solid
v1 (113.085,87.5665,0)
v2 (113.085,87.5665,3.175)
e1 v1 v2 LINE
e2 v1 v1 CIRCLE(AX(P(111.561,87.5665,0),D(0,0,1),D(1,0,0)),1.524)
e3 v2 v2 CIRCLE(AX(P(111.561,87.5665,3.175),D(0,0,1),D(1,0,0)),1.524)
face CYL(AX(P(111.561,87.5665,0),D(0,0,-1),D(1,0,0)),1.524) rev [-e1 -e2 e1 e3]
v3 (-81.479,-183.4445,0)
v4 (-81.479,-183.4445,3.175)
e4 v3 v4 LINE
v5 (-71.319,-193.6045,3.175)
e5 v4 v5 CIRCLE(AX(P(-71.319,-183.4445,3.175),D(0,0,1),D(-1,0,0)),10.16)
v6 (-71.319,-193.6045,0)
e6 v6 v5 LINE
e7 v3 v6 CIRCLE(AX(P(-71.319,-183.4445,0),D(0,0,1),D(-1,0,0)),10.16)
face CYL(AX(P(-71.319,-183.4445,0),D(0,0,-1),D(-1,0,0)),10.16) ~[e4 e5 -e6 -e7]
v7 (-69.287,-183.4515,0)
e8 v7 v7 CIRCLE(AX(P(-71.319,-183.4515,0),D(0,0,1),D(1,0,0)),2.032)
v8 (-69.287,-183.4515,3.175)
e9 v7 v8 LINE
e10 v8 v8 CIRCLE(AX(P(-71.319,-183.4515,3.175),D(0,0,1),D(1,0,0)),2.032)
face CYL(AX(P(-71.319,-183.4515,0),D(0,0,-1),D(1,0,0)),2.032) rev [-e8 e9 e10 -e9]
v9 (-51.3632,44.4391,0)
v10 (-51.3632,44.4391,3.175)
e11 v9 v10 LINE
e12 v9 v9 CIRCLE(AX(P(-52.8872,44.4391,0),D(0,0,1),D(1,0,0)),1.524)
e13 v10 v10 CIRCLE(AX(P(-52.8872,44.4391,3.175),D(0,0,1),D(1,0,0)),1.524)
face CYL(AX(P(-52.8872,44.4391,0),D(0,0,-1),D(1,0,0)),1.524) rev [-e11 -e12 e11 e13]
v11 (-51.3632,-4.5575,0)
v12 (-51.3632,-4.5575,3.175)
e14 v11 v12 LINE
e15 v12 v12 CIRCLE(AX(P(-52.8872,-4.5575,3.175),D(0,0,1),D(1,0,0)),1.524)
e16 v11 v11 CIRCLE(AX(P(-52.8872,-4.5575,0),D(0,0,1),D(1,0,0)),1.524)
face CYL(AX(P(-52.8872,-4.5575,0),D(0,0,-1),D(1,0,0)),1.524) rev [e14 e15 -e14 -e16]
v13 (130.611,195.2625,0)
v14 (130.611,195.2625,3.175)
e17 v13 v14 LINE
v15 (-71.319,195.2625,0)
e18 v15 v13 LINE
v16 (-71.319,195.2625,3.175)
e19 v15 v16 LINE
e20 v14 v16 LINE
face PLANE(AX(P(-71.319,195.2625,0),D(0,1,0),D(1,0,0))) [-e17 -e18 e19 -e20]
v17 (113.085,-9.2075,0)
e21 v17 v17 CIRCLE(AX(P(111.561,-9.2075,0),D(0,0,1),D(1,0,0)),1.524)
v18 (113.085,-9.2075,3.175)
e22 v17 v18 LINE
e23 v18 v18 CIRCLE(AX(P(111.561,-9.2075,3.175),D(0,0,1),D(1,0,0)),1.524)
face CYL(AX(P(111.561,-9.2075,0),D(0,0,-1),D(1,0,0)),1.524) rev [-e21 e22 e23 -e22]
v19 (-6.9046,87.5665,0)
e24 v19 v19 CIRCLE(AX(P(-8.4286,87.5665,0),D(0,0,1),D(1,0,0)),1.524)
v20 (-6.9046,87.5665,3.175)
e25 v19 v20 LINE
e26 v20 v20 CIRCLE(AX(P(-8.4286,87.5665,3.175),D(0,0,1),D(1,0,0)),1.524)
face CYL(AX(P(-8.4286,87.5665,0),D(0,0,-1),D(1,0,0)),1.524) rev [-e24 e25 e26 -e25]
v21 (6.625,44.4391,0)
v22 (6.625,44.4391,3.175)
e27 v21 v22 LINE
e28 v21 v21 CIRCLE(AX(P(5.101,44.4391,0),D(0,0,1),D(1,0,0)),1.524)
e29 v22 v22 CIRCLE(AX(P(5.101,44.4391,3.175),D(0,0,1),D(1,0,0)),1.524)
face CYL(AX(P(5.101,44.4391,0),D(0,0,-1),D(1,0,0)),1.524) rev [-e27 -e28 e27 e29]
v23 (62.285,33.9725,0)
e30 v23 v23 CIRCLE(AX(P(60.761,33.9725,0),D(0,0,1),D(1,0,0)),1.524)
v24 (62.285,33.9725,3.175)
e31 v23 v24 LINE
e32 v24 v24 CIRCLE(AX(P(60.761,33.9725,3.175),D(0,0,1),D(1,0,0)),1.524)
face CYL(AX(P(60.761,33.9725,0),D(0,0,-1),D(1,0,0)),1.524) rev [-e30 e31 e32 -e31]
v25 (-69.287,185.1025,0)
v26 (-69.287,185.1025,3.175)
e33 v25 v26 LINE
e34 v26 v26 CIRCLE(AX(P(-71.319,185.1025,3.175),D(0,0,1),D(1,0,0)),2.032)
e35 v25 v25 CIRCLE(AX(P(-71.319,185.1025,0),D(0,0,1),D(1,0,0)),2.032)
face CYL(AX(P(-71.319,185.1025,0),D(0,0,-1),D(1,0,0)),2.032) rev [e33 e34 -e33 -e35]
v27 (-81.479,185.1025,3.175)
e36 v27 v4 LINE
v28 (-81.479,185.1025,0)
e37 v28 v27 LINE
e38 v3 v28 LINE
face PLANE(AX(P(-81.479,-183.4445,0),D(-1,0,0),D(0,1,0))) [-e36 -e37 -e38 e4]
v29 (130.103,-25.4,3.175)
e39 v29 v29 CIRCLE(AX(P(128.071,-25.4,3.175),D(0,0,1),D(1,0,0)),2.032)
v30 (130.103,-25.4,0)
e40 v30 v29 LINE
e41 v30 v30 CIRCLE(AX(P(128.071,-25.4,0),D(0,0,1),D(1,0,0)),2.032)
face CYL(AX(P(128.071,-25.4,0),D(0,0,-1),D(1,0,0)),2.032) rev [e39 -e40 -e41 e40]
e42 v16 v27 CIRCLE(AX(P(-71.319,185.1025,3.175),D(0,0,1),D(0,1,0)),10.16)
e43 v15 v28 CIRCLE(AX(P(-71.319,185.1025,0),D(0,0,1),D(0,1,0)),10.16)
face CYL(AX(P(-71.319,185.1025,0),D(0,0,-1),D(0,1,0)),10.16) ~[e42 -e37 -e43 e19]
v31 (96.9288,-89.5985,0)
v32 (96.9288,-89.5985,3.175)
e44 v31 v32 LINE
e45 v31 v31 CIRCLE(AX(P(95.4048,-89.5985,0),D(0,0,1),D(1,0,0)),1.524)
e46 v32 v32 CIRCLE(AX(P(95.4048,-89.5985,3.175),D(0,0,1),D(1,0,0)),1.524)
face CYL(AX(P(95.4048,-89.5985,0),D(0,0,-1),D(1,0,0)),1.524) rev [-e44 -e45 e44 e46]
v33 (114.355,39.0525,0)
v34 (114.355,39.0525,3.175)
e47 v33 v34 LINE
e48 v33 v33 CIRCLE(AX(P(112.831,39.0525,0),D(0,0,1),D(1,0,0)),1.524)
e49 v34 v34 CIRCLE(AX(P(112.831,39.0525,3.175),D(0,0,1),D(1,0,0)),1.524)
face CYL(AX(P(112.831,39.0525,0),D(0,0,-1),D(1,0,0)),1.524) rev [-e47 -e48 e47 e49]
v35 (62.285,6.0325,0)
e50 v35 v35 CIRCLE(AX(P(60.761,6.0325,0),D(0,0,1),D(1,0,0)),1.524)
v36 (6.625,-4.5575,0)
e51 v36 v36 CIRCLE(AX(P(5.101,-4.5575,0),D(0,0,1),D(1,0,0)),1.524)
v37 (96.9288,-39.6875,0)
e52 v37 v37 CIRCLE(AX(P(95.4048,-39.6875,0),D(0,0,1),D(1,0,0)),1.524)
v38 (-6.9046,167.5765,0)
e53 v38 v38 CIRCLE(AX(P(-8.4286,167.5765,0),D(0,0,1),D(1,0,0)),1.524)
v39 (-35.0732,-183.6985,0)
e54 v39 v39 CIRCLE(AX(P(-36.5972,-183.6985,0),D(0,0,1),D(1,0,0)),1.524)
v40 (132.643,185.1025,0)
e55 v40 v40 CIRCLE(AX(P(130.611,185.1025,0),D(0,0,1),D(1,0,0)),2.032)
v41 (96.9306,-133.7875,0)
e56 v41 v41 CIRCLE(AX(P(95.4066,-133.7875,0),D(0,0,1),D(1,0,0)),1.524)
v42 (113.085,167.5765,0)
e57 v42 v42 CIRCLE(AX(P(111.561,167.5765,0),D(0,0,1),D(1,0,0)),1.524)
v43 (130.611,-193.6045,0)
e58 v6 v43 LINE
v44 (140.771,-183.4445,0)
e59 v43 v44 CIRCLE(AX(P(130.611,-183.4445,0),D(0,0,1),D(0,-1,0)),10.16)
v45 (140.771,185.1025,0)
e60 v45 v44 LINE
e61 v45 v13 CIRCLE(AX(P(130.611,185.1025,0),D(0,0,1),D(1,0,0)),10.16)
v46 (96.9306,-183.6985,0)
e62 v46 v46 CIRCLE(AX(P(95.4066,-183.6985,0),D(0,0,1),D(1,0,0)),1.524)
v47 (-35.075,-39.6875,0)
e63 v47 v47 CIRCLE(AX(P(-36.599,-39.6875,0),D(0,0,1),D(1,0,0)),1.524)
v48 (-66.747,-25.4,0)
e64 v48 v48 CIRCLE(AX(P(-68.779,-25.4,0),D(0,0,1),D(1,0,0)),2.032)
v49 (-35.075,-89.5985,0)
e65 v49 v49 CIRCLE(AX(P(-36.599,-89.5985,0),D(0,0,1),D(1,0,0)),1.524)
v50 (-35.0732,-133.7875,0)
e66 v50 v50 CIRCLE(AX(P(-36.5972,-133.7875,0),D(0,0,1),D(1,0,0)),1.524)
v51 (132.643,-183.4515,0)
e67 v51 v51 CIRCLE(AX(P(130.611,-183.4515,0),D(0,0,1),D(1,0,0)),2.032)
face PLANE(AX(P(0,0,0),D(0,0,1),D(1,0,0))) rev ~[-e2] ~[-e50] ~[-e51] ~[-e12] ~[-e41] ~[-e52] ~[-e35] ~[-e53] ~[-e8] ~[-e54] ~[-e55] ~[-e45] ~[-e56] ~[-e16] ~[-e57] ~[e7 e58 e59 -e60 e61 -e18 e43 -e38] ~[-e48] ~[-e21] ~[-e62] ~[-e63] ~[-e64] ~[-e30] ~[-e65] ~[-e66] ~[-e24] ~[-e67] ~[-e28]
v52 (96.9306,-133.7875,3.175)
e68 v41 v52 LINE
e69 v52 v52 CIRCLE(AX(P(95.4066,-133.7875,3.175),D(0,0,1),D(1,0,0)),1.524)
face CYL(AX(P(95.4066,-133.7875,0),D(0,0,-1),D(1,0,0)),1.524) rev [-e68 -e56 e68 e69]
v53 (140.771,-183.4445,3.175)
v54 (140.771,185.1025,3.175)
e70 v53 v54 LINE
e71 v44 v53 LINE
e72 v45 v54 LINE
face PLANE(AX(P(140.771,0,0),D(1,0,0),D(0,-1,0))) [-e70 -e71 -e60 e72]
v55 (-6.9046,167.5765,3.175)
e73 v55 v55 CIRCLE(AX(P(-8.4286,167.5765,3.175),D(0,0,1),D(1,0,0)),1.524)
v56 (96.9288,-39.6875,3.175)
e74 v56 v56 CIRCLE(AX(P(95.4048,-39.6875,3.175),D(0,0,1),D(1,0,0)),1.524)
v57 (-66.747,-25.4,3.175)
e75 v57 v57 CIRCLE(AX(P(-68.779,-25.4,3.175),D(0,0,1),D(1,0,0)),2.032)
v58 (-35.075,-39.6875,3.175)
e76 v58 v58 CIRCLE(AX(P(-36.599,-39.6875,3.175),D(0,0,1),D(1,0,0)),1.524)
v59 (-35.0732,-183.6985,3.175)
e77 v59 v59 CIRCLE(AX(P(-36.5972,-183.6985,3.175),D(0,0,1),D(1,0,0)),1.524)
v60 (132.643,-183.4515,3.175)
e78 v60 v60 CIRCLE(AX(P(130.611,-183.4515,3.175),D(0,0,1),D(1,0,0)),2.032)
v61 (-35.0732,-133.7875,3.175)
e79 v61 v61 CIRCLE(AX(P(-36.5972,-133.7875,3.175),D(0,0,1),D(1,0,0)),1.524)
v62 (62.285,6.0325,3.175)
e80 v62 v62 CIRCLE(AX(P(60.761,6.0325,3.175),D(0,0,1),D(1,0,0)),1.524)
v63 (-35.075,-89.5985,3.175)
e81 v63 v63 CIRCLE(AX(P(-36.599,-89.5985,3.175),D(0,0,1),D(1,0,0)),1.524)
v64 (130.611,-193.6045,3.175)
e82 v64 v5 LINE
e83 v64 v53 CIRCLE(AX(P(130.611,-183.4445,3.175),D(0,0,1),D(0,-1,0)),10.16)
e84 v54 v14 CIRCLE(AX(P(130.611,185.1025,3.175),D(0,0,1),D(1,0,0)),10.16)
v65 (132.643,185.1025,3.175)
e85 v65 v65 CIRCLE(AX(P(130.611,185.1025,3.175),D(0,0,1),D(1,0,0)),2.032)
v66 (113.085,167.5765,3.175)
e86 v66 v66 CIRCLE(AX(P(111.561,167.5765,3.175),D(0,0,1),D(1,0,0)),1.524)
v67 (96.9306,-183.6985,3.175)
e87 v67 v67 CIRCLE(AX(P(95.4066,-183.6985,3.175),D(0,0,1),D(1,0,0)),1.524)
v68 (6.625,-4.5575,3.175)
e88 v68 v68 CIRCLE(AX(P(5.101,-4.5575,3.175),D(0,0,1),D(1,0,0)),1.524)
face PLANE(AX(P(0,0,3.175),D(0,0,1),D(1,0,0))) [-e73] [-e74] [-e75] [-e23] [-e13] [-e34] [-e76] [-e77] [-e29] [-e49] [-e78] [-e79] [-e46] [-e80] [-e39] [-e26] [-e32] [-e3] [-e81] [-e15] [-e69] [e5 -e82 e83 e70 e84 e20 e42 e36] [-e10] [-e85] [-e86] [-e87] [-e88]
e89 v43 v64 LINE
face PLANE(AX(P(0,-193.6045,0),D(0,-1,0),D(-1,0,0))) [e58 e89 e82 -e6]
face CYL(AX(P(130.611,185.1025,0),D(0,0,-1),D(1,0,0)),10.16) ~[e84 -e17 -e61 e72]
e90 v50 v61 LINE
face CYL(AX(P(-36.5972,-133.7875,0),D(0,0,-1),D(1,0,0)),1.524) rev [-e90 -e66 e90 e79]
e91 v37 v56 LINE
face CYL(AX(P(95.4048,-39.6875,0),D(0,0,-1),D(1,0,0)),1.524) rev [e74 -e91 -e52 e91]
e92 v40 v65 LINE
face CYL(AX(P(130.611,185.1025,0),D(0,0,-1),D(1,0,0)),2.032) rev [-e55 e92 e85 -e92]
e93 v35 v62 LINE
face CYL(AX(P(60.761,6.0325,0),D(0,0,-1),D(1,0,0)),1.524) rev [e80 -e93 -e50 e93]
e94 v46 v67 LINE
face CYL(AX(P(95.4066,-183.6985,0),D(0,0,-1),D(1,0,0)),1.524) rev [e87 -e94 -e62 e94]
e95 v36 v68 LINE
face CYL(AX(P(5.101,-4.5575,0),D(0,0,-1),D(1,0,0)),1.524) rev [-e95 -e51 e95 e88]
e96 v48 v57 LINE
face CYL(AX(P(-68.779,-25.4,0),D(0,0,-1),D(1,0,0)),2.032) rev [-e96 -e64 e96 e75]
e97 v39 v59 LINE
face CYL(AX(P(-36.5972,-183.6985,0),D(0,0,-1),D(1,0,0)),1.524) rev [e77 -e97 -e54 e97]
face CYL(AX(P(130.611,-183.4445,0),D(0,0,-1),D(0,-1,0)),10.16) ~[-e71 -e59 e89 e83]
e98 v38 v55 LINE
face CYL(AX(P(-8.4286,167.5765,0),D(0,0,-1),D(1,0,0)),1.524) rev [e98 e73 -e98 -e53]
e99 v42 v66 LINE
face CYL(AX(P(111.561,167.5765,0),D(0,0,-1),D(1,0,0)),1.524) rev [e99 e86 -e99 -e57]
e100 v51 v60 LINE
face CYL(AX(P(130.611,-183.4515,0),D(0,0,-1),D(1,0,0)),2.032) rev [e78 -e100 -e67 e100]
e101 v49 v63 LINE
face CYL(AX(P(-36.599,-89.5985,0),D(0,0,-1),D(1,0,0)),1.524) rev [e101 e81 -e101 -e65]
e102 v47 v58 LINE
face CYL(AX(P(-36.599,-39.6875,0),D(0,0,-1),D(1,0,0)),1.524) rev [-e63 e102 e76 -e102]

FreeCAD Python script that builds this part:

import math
import FreeCAD as App
import Part
import Sketcher

V = App.Vector
Q = App.Units.Quantity

doc = App.newDocument("Part")
body = doc.addObject("PartDesign::Body", "Body")

# Sketch on XY plane
sketch1 = body.newObject("Sketcher::SketchObject", "Sketch")
sketch1.AttachmentSupport = (doc.getObject("XY_Plane"), [""])
sketch1.MapMode = "FlatFace"
sketch1.addGeometry([
    Part.LineSegment(V(-71.319, -193.6045, 0), V(130.611, -193.6045, 0)),  # 0
    Part.ArcOfCircle(Part.Circle(V(130.611, -183.4445, 0), V(0, 0, 1), 10.16), math.radians(-90), math.radians(0)),  # 1
    Part.LineSegment(V(140.771, -183.4445, 0), V(140.771, 185.1025, 0)),  # 2
    Part.ArcOfCircle(Part.Circle(V(130.611, 185.1025, 0), V(0, 0, 1), 10.16), math.radians(0), math.radians(90)),  # 3
    Part.LineSegment(V(130.611, 195.2625, 0), V(-71.319, 195.2625, 0)),  # 4
    Part.ArcOfCircle(Part.Circle(V(-71.319, 185.1025, 0), V(0, 0, 1), 10.16), math.radians(90), math.radians(180)),  # 5
    Part.LineSegment(V(-81.479, 185.1025, 0), V(-81.479, -183.4445, 0)),  # 6
    Part.ArcOfCircle(Part.Circle(V(-71.319, -183.4445, 0), V(0, 0, 1), 10.16), math.radians(180), math.radians(270)),  # 7
    Part.Circle(V(-71.319, -183.4515, 0), V(0, 0, 1), 2.032),  # 8
    Part.Circle(V(-36.5972, -183.6985, 0), V(0, 0, 1), 1.524),  # 9
    Part.Circle(V(-36.5972, -133.7875, 0), V(0, 0, 1), 1.524),  # 10
    Part.Circle(V(-36.599, -89.5985, 0), V(0, 0, 1), 1.524),  # 11
    Part.Circle(V(-68.779, -25.4, 0), V(0, 0, 1), 2.032),  # 12
    Part.Circle(V(-36.599, -39.6875, 0), V(0, 0, 1), 1.524),  # 13
    Part.Circle(V(-52.8872, -4.5575, 0), V(0, 0, 1), 1.524),  # 14
    Part.Circle(V(-8.4286, 167.5765, 0), V(0, 0, 1), 1.524),  # 15
    Part.Circle(V(-52.8872, 44.4391, 0), V(0, 0, 1), 1.524),  # 16
    Part.Circle(V(-8.4286, 87.5665, 0), V(0, 0, 1), 1.524),  # 17
    Part.Circle(V(-71.319, 185.1025, 0), V(0, 0, 1), 2.032),  # 18
    Part.Circle(V(128.071, -25.4, 0), V(0, 0, 1), 2.032),  # 19
    Part.Circle(V(5.101, -4.5575, 0), V(0, 0, 1), 1.524),  # 20
    Part.Circle(V(95.4066, -183.6985, 0), V(0, 0, 1), 1.524),  # 21
    Part.Circle(V(130.611, -183.4515, 0), V(0, 0, 1), 2.032),  # 22
    Part.Circle(V(95.4066, -133.7875, 0), V(0, 0, 1), 1.524),  # 23
    Part.Circle(V(95.4048, -89.5985, 0), V(0, 0, 1), 1.524),  # 24
    Part.Circle(V(95.4048, -39.6875, 0), V(0, 0, 1), 1.524),  # 25
    Part.Circle(V(111.561, -9.2075, 0), V(0, 0, 1), 1.524),  # 26
    Part.Circle(V(130.611, 185.1025, 0), V(0, 0, 1), 2.032),  # 27
    Part.Circle(V(111.561, 167.5765, 0), V(0, 0, 1), 1.524),  # 28
    Part.Circle(V(5.101, 44.4391, 0), V(0, 0, 1), 1.524),  # 29
    Part.Circle(V(60.761, 6.0325, 0), V(0, 0, 1), 1.524),  # 30
    Part.Circle(V(60.761, 33.9725, 0), V(0, 0, 1), 1.524),  # 31
    Part.Circle(V(112.831, 39.0525, 0), V(0, 0, 1), 1.524),  # 32
    Part.Circle(V(111.561, 87.5665, 0), V(0, 0, 1), 1.524),  # 33
], False)
sketch1.addConstraint([
    Sketcher.Constraint("Tangent", 0, 2, 1, 1),
    Sketcher.Constraint("Tangent", 1, 2, 2, 1),
    Sketcher.Constraint("Tangent", 2, 2, 3, 1),
    Sketcher.Constraint("Tangent", 3, 2, 4, 1),
    Sketcher.Constraint("Tangent", 4, 2, 5, 1),
    Sketcher.Constraint("Tangent", 5, 2, 6, 1),
    Sketcher.Constraint("Tangent", 6, 2, 7, 1),
    Sketcher.Constraint("Tangent", 7, 2, 0, 1),
    Sketcher.Constraint("Horizontal", 0),
    Sketcher.Constraint("Vertical", 2),
    Sketcher.Constraint("Horizontal", 4),
    Sketcher.Constraint("Vertical", 6),
    Sketcher.Constraint("Coincident", 18, 3, 5, 3),
    Sketcher.Constraint("Coincident", 27, 3, 3, 3),
    Sketcher.Constraint("Equal", 1, 3),
    Sketcher.Constraint("Equal", 3, 5),
    Sketcher.Constraint("Equal", 5, 7),
    Sketcher.Constraint("Equal", 9, 10),
    Sketcher.Constraint("Equal", 10, 11),
    Sketcher.Constraint("Equal", 8, 12),
    Sketcher.Constraint("Equal", 11, 13),
    Sketcher.Constraint("Equal", 13, 14),
    Sketcher.Constraint("Equal", 14, 15),
    Sketcher.Constraint("Equal", 15, 16),
    Sketcher.Constraint("Equal", 16, 17),
    Sketcher.Constraint("Equal", 12, 18),
    Sketcher.Constraint("Equal", 18, 19),
    Sketcher.Constraint("Equal", 17, 20),
    Sketcher.Constraint("Equal", 20, 21),
    Sketcher.Constraint("Equal", 19, 22),
    Sketcher.Constraint("Equal", 21, 23),
    Sketcher.Constraint("Equal", 23, 24),
    Sketcher.Constraint("Equal", 24, 25),
    Sketcher.Constraint("Equal", 25, 26),
    Sketcher.Constraint("Equal", 22, 27),
    Sketcher.Constraint("Equal", 26, 28),
    Sketcher.Constraint("Equal", 28, 29),
    Sketcher.Constraint("Equal", 29, 30),
    Sketcher.Constraint("Equal", 30, 31),
    Sketcher.Constraint("Equal", 31, 32),
    Sketcher.Constraint("Equal", 32, 33),
    Sketcher.Constraint("Horizontal", 12, 3, 19, 3),
    Sketcher.Constraint("Horizontal", 14, 3, 20, 3),
    Sketcher.Constraint("Horizontal", 9, 3, 21, 3),
    Sketcher.Constraint("Horizontal", 8, 3, 22, 3),
    Sketcher.Constraint("Horizontal", 10, 3, 23, 3),
    Sketcher.Constraint("Horizontal", 11, 3, 24, 3),
    Sketcher.Constraint("Horizontal", 13, 3, 25, 3),
    Sketcher.Constraint("Horizontal", 15, 3, 28, 3),
    Sketcher.Constraint("Horizontal", 16, 3, 29, 3),
    Sketcher.Constraint("Horizontal", 17, 3, 33, 3),
    Sketcher.Constraint("Vertical", 7, 3, 8, 3),
    Sketcher.Constraint("Vertical", 9, 3, 10, 3),
    Sketcher.Constraint("Vertical", 11, 3, 13, 3),
    Sketcher.Constraint("Vertical", 14, 3, 16, 3),
    Sketcher.Constraint("Vertical", 15, 3, 17, 3),
    Sketcher.Constraint("Vertical", 3, 3, 22, 3),
    Sketcher.Constraint("Vertical", 21, 3, 23, 3),
    Sketcher.Constraint("Vertical", 24, 3, 25, 3),
    Sketcher.Constraint("Vertical", 26, 3, 28, 3),
    Sketcher.Constraint("Vertical", 20, 3, 29, 3),
    Sketcher.Constraint("Vertical", 30, 3, 31, 3),
    Sketcher.Constraint("Vertical", 28, 3, 33, 3),
    Sketcher.Constraint("Radius", 1, Q("0.4 in")),
    Sketcher.Constraint("Diameter", 8, Q("0.16 in")),
    Sketcher.Constraint("Diameter", 9, Q("0.12 in")),
    Sketcher.Constraint("DistanceX", 30, 3, 26, 3, Q("2 in")),
    Sketcher.Constraint("DistanceX", 0, 1, 0, 2, Q("7.95 in")),
    Sketcher.Constraint("DistanceX", 7, 3, 12, 3, Q("0.1 in")),
    Sketcher.Constraint("DistanceX", 19, 3, 1, 3, Q("0.1 in")),
    Sketcher.Constraint("DistanceY", 26, 3, 30, 3, Q("0.6 in")),
    Sketcher.Constraint("DistanceY", 30, 3, 31, 3, Q("1.1 in")),
    Sketcher.Constraint("DistanceY", 31, 3, 32, 3, Q("0.2 in")),
    Sketcher.Constraint("DistanceX", 32, 3, 19, 3, Q("0.6 in")),
    Sketcher.Constraint("DistanceY", 8, 3, 5, 3, Q("14.51 in")),
    Sketcher.Constraint("DistanceY", 17, 3, 15, 3, Q("3.15 in")),
    Sketcher.Constraint("DistanceX", 26, 3, 27, 3, Q("0.75 in")),
    Sketcher.Constraint("DistanceY", 12, 3, -1, 1, Q("1 in")),
    Sketcher.Constraint("DistanceY", 9, 3, 10, 3, Q("1.965 in")),
    Sketcher.Constraint("DistanceY", 11, 3, 13, 3, Q("1.965 in")),
    Sketcher.Constraint("DistanceY", 14, 3, 16, 3, Q("1.929 in")),
    Sketcher.Constraint("DistanceX", 14, 3, 20, 3, Q("2.283 in")),
    Sketcher.Constraint("DistanceX", 9, 3, 21, 3, Q("5.197 in")),
    Sketcher.Constraint("DistanceX", 13, 3, 25, 3, Q("5.197 in")),
    Sketcher.Constraint("DistanceX", 15, 3, 28, 3, Q("4.724 in")),
    Sketcher.Constraint("DistanceY", 25, 3, 26, 3, Q("1.2 in")),
    Sketcher.Constraint("DistanceY", 9, 3, 7, 3, Q("0.01 in")),
    Sketcher.Constraint("DistanceY", 15, 3, 5, 3, Q("0.69 in")),
    Sketcher.Constraint("DistanceY", 13, 3, 15, 3, Q("8.16 in")),
    Sketcher.Constraint("DistanceY", 13, 3, -1, 1, Q("1.5625 in")),
    Sketcher.Constraint("DistanceX", 8, 3, 9, 3, Q("1.367 in")),
    Sketcher.Constraint("DistanceY", 2, 1, 2, 2, 368.547),
    Sketcher.Constraint("DistanceX", 11, 3, -1, 1, Q("1.4409 in")),
    Sketcher.Constraint("DistanceY", 10, 3, 14, 3, Q("5.0878 in")),
    Sketcher.Constraint("DistanceX", -1, 1, 1, 3, 130.611),
    Sketcher.Constraint("DistanceX", 14, 3, -1, 1, 52.8872),
])
pad1 = body.newObject("PartDesign::Pad", "Pad")
pad1.Profile = sketch1
pad1.Length = Q("0.125 in")

doc.recompute()
